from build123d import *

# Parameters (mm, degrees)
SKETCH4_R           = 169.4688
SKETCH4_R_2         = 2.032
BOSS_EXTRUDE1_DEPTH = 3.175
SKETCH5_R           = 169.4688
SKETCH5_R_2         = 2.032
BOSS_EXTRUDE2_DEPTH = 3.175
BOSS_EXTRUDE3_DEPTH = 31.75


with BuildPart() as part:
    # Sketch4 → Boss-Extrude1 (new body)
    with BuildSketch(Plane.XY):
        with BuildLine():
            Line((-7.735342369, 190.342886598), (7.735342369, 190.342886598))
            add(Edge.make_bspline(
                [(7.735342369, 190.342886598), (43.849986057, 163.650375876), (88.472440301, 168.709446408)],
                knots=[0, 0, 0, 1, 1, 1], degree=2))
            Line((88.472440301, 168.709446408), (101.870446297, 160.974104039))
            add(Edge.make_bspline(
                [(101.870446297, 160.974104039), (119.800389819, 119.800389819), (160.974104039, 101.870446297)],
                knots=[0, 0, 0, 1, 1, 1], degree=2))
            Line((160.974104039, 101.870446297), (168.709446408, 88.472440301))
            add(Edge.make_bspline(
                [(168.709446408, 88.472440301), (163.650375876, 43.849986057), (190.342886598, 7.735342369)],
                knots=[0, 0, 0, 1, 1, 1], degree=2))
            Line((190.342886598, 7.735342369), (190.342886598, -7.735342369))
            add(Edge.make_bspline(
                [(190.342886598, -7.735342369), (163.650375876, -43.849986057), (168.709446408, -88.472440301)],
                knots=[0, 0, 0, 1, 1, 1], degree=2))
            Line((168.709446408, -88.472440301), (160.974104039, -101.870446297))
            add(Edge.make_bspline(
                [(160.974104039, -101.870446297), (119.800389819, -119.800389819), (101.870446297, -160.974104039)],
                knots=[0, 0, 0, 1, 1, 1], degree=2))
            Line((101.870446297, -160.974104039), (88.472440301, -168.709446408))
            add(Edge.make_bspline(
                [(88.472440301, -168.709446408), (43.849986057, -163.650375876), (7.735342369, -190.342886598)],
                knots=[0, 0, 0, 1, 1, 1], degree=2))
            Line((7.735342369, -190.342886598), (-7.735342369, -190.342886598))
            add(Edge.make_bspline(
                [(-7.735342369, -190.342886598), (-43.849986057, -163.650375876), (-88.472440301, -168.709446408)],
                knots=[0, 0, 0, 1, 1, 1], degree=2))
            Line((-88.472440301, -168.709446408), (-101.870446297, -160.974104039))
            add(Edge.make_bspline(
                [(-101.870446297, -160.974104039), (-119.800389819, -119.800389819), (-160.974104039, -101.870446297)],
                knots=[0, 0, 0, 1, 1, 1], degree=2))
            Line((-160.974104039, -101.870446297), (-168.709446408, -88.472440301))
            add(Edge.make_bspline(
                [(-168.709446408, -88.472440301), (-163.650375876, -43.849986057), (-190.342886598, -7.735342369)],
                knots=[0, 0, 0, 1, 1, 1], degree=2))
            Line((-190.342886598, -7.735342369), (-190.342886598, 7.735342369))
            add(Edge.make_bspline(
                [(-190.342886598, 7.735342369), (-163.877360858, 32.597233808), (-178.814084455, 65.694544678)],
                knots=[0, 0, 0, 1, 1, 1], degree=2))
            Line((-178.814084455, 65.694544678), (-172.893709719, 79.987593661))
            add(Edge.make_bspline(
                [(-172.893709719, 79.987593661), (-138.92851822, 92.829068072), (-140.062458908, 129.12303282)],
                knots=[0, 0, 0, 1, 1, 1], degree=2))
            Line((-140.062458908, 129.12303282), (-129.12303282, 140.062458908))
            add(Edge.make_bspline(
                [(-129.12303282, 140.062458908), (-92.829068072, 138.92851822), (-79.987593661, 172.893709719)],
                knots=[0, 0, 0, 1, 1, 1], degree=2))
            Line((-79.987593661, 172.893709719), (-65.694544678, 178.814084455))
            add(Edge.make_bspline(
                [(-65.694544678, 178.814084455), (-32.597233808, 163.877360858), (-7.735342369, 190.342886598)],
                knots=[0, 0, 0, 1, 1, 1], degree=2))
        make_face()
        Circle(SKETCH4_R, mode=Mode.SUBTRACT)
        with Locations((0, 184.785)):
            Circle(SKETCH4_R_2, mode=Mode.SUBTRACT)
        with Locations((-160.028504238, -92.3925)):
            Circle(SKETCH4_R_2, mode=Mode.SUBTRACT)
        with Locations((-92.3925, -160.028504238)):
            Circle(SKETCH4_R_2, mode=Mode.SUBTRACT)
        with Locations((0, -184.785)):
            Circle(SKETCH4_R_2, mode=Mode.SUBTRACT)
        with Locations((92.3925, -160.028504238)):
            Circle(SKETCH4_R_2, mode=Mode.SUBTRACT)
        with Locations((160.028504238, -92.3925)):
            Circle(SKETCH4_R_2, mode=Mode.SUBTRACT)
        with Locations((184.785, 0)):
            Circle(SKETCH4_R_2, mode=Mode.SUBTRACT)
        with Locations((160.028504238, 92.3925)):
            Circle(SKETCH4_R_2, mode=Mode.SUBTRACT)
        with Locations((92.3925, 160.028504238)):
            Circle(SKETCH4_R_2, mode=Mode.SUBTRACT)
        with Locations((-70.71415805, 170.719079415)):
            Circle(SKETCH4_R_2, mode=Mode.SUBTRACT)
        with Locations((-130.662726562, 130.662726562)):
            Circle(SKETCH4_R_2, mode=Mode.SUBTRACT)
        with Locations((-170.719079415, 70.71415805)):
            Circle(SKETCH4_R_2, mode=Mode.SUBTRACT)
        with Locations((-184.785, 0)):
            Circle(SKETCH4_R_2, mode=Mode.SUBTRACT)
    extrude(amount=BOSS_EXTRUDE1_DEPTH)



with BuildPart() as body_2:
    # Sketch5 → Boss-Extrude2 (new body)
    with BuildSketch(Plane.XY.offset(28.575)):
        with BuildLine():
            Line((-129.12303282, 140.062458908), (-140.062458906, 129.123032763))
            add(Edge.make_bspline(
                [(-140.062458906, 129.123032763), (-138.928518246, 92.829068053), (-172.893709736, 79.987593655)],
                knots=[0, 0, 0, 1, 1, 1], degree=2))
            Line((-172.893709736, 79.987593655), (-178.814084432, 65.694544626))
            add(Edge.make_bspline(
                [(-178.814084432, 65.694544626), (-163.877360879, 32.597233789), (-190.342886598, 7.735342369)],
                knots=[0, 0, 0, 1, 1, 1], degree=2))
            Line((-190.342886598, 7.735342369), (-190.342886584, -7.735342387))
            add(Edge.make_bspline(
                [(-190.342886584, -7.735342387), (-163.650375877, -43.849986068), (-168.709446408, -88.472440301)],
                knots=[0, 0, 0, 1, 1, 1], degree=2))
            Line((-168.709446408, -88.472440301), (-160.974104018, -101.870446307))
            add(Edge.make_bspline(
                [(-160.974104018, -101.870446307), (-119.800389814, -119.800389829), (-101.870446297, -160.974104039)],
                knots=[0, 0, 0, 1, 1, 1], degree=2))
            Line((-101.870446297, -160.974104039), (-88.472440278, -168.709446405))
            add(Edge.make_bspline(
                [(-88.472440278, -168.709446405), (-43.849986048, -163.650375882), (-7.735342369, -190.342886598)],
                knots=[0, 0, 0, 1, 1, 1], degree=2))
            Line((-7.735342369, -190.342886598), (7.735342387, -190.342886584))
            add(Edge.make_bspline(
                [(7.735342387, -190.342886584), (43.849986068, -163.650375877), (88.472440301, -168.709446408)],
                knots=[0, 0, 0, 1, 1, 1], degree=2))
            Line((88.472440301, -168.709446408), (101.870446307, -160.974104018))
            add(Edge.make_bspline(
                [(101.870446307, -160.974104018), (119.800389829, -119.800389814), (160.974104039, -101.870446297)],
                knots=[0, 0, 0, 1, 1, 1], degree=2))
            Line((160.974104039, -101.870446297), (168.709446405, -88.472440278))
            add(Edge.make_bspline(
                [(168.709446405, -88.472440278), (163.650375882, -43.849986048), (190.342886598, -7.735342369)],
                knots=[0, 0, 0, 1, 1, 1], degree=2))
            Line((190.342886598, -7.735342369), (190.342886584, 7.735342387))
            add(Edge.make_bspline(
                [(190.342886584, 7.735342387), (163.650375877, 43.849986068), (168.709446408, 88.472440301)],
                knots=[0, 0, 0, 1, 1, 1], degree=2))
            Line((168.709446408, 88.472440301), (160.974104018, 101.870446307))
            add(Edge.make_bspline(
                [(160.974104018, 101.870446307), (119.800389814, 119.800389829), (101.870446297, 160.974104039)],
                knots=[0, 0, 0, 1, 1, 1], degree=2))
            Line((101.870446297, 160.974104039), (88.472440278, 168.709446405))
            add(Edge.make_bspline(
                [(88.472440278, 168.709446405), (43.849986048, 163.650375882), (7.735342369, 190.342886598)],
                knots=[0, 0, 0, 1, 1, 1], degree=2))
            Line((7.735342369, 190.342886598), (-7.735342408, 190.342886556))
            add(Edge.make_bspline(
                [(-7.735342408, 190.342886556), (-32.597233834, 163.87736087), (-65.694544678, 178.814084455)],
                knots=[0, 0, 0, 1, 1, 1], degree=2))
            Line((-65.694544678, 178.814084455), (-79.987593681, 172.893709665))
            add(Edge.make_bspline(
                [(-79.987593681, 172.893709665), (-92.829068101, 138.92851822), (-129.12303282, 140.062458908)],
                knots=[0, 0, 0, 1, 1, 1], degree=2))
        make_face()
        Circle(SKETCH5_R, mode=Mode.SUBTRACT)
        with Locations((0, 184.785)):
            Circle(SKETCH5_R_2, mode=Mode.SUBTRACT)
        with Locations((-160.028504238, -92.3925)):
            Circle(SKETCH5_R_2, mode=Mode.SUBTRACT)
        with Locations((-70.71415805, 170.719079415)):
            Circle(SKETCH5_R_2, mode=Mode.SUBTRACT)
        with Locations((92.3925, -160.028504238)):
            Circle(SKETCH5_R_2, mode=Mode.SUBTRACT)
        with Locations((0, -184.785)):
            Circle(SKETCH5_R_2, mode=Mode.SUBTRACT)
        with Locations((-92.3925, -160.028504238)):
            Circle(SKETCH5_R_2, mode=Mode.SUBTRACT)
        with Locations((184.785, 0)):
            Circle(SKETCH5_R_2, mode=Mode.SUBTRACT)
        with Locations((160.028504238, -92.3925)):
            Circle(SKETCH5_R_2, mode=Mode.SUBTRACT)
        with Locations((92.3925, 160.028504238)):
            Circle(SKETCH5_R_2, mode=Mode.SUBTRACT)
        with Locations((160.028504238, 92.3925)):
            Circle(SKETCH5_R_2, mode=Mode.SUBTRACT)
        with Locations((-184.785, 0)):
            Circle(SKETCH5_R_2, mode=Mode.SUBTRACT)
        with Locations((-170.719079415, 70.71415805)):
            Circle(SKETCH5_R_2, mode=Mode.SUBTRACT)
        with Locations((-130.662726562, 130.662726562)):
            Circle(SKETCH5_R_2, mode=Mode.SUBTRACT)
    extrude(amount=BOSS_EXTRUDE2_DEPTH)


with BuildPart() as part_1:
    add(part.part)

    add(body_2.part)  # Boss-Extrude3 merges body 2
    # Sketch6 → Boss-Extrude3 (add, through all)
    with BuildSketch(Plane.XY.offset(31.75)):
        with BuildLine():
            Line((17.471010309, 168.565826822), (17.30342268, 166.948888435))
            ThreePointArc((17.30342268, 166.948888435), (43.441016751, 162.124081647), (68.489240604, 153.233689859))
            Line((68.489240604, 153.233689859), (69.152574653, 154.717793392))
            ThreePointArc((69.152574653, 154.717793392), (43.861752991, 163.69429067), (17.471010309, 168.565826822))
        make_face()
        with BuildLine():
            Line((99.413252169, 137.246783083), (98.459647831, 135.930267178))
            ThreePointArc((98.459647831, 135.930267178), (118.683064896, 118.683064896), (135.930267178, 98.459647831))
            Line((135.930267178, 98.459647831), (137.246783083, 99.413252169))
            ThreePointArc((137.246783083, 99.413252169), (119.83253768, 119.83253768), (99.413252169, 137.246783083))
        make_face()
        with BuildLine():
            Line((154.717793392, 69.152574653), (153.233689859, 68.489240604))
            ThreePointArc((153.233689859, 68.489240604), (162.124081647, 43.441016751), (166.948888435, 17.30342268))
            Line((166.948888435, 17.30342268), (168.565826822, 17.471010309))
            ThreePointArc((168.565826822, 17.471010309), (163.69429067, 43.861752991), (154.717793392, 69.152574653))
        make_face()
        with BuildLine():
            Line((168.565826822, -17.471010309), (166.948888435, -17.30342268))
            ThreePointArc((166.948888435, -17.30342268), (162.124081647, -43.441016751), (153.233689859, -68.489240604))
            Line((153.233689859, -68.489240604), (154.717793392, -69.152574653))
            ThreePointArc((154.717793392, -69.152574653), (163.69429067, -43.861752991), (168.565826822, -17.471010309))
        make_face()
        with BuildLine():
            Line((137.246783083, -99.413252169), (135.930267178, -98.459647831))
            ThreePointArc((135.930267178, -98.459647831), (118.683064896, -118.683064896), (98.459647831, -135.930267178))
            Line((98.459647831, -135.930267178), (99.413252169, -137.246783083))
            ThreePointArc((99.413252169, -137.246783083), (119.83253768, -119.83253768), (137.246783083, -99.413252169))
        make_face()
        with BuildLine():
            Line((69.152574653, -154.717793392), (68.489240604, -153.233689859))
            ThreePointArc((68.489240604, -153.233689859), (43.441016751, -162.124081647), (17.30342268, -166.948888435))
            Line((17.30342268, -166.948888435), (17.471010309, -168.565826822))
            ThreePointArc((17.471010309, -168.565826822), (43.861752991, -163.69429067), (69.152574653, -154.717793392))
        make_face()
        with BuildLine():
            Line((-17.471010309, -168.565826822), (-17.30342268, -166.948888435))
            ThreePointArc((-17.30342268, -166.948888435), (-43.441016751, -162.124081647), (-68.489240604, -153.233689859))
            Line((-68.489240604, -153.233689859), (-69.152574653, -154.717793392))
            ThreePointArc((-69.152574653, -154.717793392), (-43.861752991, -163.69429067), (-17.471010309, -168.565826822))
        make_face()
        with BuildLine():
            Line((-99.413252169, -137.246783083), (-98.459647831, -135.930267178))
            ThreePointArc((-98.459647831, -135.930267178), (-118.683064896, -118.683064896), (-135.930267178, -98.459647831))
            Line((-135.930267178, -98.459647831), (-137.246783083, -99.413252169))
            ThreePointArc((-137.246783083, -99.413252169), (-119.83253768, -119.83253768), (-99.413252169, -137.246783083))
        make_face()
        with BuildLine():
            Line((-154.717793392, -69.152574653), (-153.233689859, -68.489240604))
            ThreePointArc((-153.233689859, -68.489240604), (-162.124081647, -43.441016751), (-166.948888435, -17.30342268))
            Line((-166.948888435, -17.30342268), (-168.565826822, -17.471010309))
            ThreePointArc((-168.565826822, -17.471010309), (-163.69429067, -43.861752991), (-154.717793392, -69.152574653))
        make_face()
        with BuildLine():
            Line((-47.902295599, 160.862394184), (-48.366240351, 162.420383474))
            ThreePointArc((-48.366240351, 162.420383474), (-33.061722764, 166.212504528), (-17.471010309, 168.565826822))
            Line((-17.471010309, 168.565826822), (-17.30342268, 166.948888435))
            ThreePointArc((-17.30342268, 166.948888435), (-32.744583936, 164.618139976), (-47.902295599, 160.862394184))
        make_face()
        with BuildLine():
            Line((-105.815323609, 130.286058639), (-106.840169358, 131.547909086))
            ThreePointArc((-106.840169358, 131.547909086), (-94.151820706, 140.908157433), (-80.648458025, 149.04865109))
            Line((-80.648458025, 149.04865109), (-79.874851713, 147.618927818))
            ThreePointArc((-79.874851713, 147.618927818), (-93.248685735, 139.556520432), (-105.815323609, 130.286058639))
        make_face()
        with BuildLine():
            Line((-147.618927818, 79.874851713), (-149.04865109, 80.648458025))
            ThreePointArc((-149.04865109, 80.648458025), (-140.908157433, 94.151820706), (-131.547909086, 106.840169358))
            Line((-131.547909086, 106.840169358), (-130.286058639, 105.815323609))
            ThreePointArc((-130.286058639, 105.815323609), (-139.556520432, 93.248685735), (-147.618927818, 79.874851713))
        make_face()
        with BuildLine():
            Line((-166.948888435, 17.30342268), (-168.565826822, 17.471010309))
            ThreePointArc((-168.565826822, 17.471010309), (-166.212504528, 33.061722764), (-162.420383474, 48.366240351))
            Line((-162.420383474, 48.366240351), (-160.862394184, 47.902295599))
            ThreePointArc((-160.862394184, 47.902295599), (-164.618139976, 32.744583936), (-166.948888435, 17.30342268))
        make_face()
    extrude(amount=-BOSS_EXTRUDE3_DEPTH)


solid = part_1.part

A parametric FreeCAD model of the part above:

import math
import FreeCAD as App
import Part
import Sketcher
from FreeCAD import Vector
Q = App.Units.Quantity

doc = App.newDocument("Part")
params = doc.addObject("Spreadsheet::Sheet", "Params")
for row, (alias, value) in enumerate([
    ("sketch1_diameter", "0.16 in"),
    ("sketch1_diameter2", "13.344 in"),
    ("pad1_length", "0.125 in"),
    ("sketch2_diameter", "0.16 in"),
    ("sketch2_diameter2", "13.344 in"),
    ("pad2_length", "0.125 in"),
    ("sketch3_radius", "6.608 in"),
    ("sketch3_radius2", "6.672 in"),
    ("pad3_length", "1.25 in"),
], start=1):
    params.set(f"A{row}", alias)
    params.set(f"B{row}", "=" + value)
    params.setAlias(f"B{row}", alias)

body = doc.addObject("PartDesign::Body", "Body")

# Sketch on XY plane
sketch1 = body.newObject("Sketcher::SketchObject", "Sketch")
sketch1.AttachmentSupport = (doc.getObject("XY_Plane"), [""])
sketch1.MapMode = "FlatFace"
sketch1.addGeometry(Part.LineSegment(Vector(7.735342, 190.342887, 0), Vector(-7.735342, 190.342887, 0)), False)
sketch1.addGeometry(Part.BSplineCurve([Vector(-65.694545, 178.814084, 0), Vector(-32.597234, 163.877361, 0), Vector(-7.735342, 190.342887, 0)], [3, 3], [0, 1], False, 2, [1, 1, 1], False), False)
sketch1.addGeometry(Part.LineSegment(Vector(-65.694545, 178.814084, 0), Vector(-79.987594, 172.89371, 0)), False)
sketch1.addGeometry(Part.BSplineCurve([Vector(-129.123033, 140.062459, 0), Vector(-92.829068, 138.928518, 0), Vector(-79.987594, 172.89371, 0)], [3, 3], [0, 1], False, 2, [1, 1, 1], False), False)
sketch1.addGeometry(Part.LineSegment(Vector(-129.123033, 140.062459, 0), Vector(-140.062459, 129.123033, 0)), False)
sketch1.addGeometry(Part.BSplineCurve([Vector(-172.89371, 79.987594, 0), Vector(-138.928518, 92.829068, 0), Vector(-140.062459, 129.123033, 0)], [3, 3], [0, 1], False, 2, [1, 1, 1], False), False)
sketch1.addGeometry(Part.LineSegment(Vector(-172.89371, 79.987594, 0), Vector(-178.814084, 65.694545, 0)), False)
sketch1.addGeometry(Part.BSplineCurve([Vector(-190.342887, 7.735342, 0), Vector(-163.877361, 32.597234, 0), Vector(-178.814084, 65.694545, 0)], [3, 3], [0, 1], False, 2, [1, 1, 1], False), False)
sketch1.addGeometry(Part.LineSegment(Vector(-190.342887, 7.735342, 0), Vector(-190.342887, -7.735342, 0)), False)
sketch1.addGeometry(Part.BSplineCurve([Vector(-168.709446, -88.47244, 0), Vector(-163.650376, -43.849986, 0), Vector(-190.342887, -7.735342, 0)], [3, 3], [0, 1], False, 2, [1, 1, 1], False), False)
sketch1.addGeometry(Part.LineSegment(Vector(-168.709446, -88.47244, 0), Vector(-160.974104, -101.870446, 0)), False)
sketch1.addGeometry(Part.BSplineCurve([Vector(-101.870446, -160.974104, 0), Vector(-119.80039, -119.80039, 0), Vector(-160.974104, -101.870446, 0)], [3, 3], [0, 1], False, 2, [1, 1, 1], False), False)
sketch1.addGeometry(Part.LineSegment(Vector(-101.870446, -160.974104, 0), Vector(-88.47244, -168.709446, 0)), False)
sketch1.addGeometry(Part.BSplineCurve([Vector(-7.735342, -190.342887, 0), Vector(-43.849986, -163.650376, 0), Vector(-88.47244, -168.709446, 0)], [3, 3], [0, 1], False, 2, [1, 1, 1], False), False)
sketch1.addGeometry(Part.LineSegment(Vector(-7.735342, -190.342887, 0), Vector(7.735342, -190.342887, 0)), False)
sketch1.addGeometry(Part.BSplineCurve([Vector(88.47244, -168.709446, 0), Vector(43.849986, -163.650376, 0), Vector(7.735342, -190.342887, 0)], [3, 3], [0, 1], False, 2, [1, 1, 1], False), False)
sketch1.addGeometry(Part.LineSegment(Vector(88.47244, -168.709446, 0), Vector(101.870446, -160.974104, 0)), False)
sketch1.addGeometry(Part.BSplineCurve([Vector(160.974104, -101.870446, 0), Vector(119.80039, -119.80039, 0), Vector(101.870446, -160.974104, 0)], [3, 3], [0, 1], False, 2, [1, 1, 1], False), False)
sketch1.addGeometry(Part.LineSegment(Vector(160.974104, -101.870446, 0), Vector(168.709446, -88.47244, 0)), False)
sketch1.addGeometry(Part.BSplineCurve([Vector(190.342887, -7.735342, 0), Vector(163.650376, -43.849986, 0), Vector(168.709446, -88.47244, 0)], [3, 3], [0, 1], False, 2, [1, 1, 1], False), False)
sketch1.addGeometry(Part.LineSegment(Vector(190.342887, -7.735342, 0), Vector(190.342887, 7.735342, 0)), False)
sketch1.addGeometry(Part.BSplineCurve([Vector(168.709446, 88.47244, 0), Vector(163.650376, 43.849986, 0), Vector(190.342887, 7.735342, 0)], [3, 3], [0, 1], False, 2, [1, 1, 1], False), False)
sketch1.addGeometry(Part.LineSegment(Vector(168.709446, 88.47244, 0), Vector(160.974104, 101.870446, 0)), False)
sketch1.addGeometry(Part.BSplineCurve([Vector(101.870446, 160.974104, 0), Vector(119.80039, 119.80039, 0), Vector(160.974104, 101.870446, 0)], [3, 3], [0, 1], False, 2, [1, 1, 1], False), False)
sketch1.addGeometry(Part.LineSegment(Vector(101.870446, 160.974104, 0), Vector(88.47244, 168.709446, 0)), False)
sketch1.addGeometry(Part.BSplineCurve([Vector(7.735342, 190.342887, 0), Vector(43.849986, 163.650376, 0), Vector(88.47244, 168.709446, 0)], [3, 3], [0, 1], False, 2, [1, 1, 1], False), False)
sketch1.addGeometry(Part.Circle(Vector(92.3925, -160.028504, 0), Vector(0, 0, 1), 2.032), False)
sketch1.addGeometry(Part.Circle(Vector(0, -184.785, 0), Vector(0, 0, 1), 2.032), False)
sketch1.addGeometry(Part.Circle(Vector(160.028504, -92.3925, 0), Vector(0, 0, 1), 2.032), False)
sketch1.addGeometry(Part.Circle(Vector(184.785, 0, 0), Vector(0, 0, 1), 2.032), False)
sketch1.addGeometry(Part.Circle(Vector(0, 0, 0), Vector(0, 0, 1), 169.4688), False)
sketch1.addGeometry(Part.Circle(Vector(-92.3925, -160.028504, 0), Vector(0, 0, 1), 2.032), False)
sketch1.addGeometry(Part.Circle(Vector(-160.028504, -92.3925, 0), Vector(0, 0, 1), 2.032), False)
sketch1.addGeometry(Part.Circle(Vector(-184.785, 0, 0), Vector(0, 0, 1), 2.032), False)
sketch1.addGeometry(Part.Circle(Vector(160.028504, 92.3925, 0), Vector(0, 0, 1), 2.032), False)
sketch1.addGeometry(Part.Circle(Vector(92.3925, 160.028504, 0), Vector(0, 0, 1), 2.032), False)
sketch1.addGeometry(Part.Circle(Vector(0, 184.785, 0), Vector(0, 0, 1), 2.032), False)
sketch1.addGeometry(Part.Circle(Vector(-170.719079, 70.714158, 0), Vector(0, 0, 1), 2.032), False)
sketch1.addGeometry(Part.Circle(Vector(-70.714158, 170.719079, 0), Vector(0, 0, 1), 2.032), False)
sketch1.addGeometry(Part.Circle(Vector(-130.662727, 130.662727, 0), Vector(0, 0, 1), 2.032), False)
sketch1.addConstraint(Sketcher.Constraint("Block", 1))
sketch1.addConstraint(Sketcher.Constraint("Block", 3))
sketch1.addConstraint(Sketcher.Constraint("Block", 5))
sketch1.addConstraint(Sketcher.Constraint("Block", 7))
sketch1.addConstraint(Sketcher.Constraint("Block", 9))
sketch1.addConstraint(Sketcher.Constraint("Block", 11))
sketch1.addConstraint(Sketcher.Constraint("Block", 13))
sketch1.addConstraint(Sketcher.Constraint("Block", 15))
sketch1.addConstraint(Sketcher.Constraint("Block", 17))
sketch1.addConstraint(Sketcher.Constraint("Block", 19))
sketch1.addConstraint(Sketcher.Constraint("Block", 21))
sketch1.addConstraint(Sketcher.Constraint("Block", 23))
sketch1.addConstraint(Sketcher.Constraint("Block", 25))
sketch1.addConstraint(Sketcher.Constraint("Coincident", 0, 2, 1, 2))
sketch1.addConstraint(Sketcher.Constraint("Coincident", 1, 1, 2, 1))
sketch1.addConstraint(Sketcher.Constraint("Coincident", 2, 2, 3, 2))
sketch1.addConstraint(Sketcher.Constraint("Coincident", 3, 1, 4, 1))
sketch1.addConstraint(Sketcher.Constraint("Coincident", 4, 2, 5, 2))
sketch1.addConstraint(Sketcher.Constraint("Coincident", 5, 1, 6, 1))
sketch1.addConstraint(Sketcher.Constraint("Coincident", 6, 2, 7, 2))
sketch1.addConstraint(Sketcher.Constraint("Coincident", 7, 1, 8, 1))
sketch1.addConstraint(Sketcher.Constraint("Coincident", 8, 2, 9, 2))
sketch1.addConstraint(Sketcher.Constraint("Coincident", 9, 1, 10, 1))
sketch1.addConstraint(Sketcher.Constraint("Coincident", 10, 2, 11, 2))
sketch1.addConstraint(Sketcher.Constraint("Coincident", 11, 1, 12, 1))
sketch1.addConstraint(Sketcher.Constraint("Coincident", 12, 2, 13, 2))
sketch1.addConstraint(Sketcher.Constraint("Coincident", 13, 1, 14, 1))
sketch1.addConstraint(Sketcher.Constraint("Coincident", 14, 2, 15, 2))
sketch1.addConstraint(Sketcher.Constraint("Coincident", 15, 1, 16, 1))
sketch1.addConstraint(Sketcher.Constraint("Coincident", 16, 2, 17, 2))
sketch1.addConstraint(Sketcher.Constraint("Coincident", 17, 1, 18, 1))
sketch1.addConstraint(Sketcher.Constraint("Coincident", 18, 2, 19, 2))
sketch1.addConstraint(Sketcher.Constraint("Coincident", 19, 1, 20, 1))
sketch1.addConstraint(Sketcher.Constraint("Coincident", 20, 2, 21, 2))
sketch1.addConstraint(Sketcher.Constraint("Coincident", 21, 1, 22, 1))
sketch1.addConstraint(Sketcher.Constraint("Coincident", 22, 2, 23, 2))
sketch1.addConstraint(Sketcher.Constraint("Coincident", 23, 1, 24, 1))
sketch1.addConstraint(Sketcher.Constraint("Coincident", 24, 2, 25, 2))
sketch1.addConstraint(Sketcher.Constraint("Coincident", 25, 1, 0, 1))
sketch1.addConstraint(Sketcher.Constraint("Coincident", 30, 3, -1, 1))
sketch1.addConstraint(Sketcher.Constraint("Equal", 26, 27))
sketch1.addConstraint(Sketcher.Constraint("Equal", 27, 28))
sketch1.addConstraint(Sketcher.Constraint("Equal", 28, 29))
sketch1.addConstraint(Sketcher.Constraint("Equal", 29, 31))
sketch1.addConstraint(Sketcher.Constraint("Equal", 31, 32))
sketch1.addConstraint(Sketcher.Constraint("Equal", 32, 33))
sketch1.addConstraint(Sketcher.Constraint("Equal", 33, 34))
sketch1.addConstraint(Sketcher.Constraint("Equal", 34, 35))
sketch1.addConstraint(Sketcher.Constraint("Equal", 35, 36))
sketch1.addConstraint(Sketcher.Constraint("Equal", 36, 37))
sketch1.addConstraint(Sketcher.Constraint("Equal", 37, 38))
sketch1.addConstraint(Sketcher.Constraint("Equal", 38, 39))
sketch1.addConstraint(Sketcher.Constraint("Symmetric", 29, 3, 33, 3, -1, 1))
sketch1.addConstraint(Sketcher.Constraint("Symmetric", 32, 3, 34, 3, -1, 1))
sketch1.addConstraint(Sketcher.Constraint("Symmetric", 31, 3, 35, 3, -1, 1))
sketch1.addConstraint(Sketcher.Constraint("Symmetric", 27, 3, 36, 3, -1, 1))
sketch1.addConstraint(Sketcher.Constraint("Symmetric", 26, 3, 31, 3, -2))
sketch1.addConstraint(Sketcher.Constraint("Symmetric", 28, 3, 32, 3, -2))
sketch1.addConstraint(Sketcher.Constraint("PointOnObject", 27, 3, -2))
sketch1.addConstraint(Sketcher.Constraint("PointOnObject", 29, 3, -1))
sketch1.addConstraint(Sketcher.Constraint("Diameter", 26, Q("0.16 in")))
sketch1.addConstraint(Sketcher.Constraint("Diameter", 30, Q("13.344 in")))
sketch1.addConstraint(Sketcher.Constraint("DistanceY", 27, 3, -1, 1, Q("7.275 in")))
sketch1.addConstraint(Sketcher.Constraint("DistanceX", -1, 1, 29, 3, Q("7.275 in")))
sketch1.addConstraint(Sketcher.Constraint("DistanceX", 31, 3, 26, 3, Q("7.275 in")))
sketch1.addConstraint(Sketcher.Constraint("DistanceY", 28, 3, 34, 3, Q("7.275 in")))
sketch1.addConstraint(Sketcher.Constraint("DistanceX", 4, 2, 38, 3, 69.348301))
sketch1.addConstraint(Sketcher.Constraint("DistanceY", 8, 2, 37, 3, 78.4495))
sketch1.addConstraint(Sketcher.Constraint("DistanceX", 10, 2, 32, 3, 0.9456))
sketch1.addConstraint(Sketcher.Constraint("DistanceY", 16, 2, 26, 3, 0.9456))
sketch1.addConstraint(Sketcher.Constraint("DistanceX", 37, 3, -1, 1, 170.719079))
sketch1.addConstraint(Sketcher.Constraint("DistanceY", -1, 1, 38, 3, 170.719079))
sketch1.addConstraint(Sketcher.Constraint("DistanceY", 37, 3, 39, 3, 59.948569))
sketch1.addConstraint(Sketcher.Constraint("DistanceX", 39, 3, 38, 3, 59.948569))
sketch1.setExpression("Constraints[60]", "Params.sketch1_diameter")
sketch1.setExpression("Constraints[61]", "Params.sketch1_diameter2")
pad1 = body.newObject("PartDesign::Pad", "Pad")
pad1.Profile = sketch1
pad1.setExpression("Length", "Params.pad1_length")
body2 = doc.addObject("PartDesign::Body", "Body001")

# Sketch on XY plane
sketch2 = body2.newObject("Sketcher::SketchObject", "Sketch001")
sketch2.AttachmentSupport = (doc.getObject("XY_Plane001"), [""])
sketch2.MapMode = "FlatFace"
sketch2.AttachmentOffset = App.Placement(Vector(0, 0, 1.125 * 25.4), App.Rotation())
sketch2.addGeometry(Part.LineSegment(Vector(-129.123033, 140.062459, 0), Vector(-140.062459, 129.123033, 0)), False)
sketch2.addGeometry(Part.BSplineCurve([Vector(-140.062459, 129.123033, 0), Vector(-138.928518, 92.829068, 0), Vector(-172.89371, 79.987594, 0)], [3, 3], [0, 1], False, 2, [1, 1, 1], False), False)
sketch2.addGeometry(Part.LineSegment(Vector(-172.89371, 79.987594, 0), Vector(-178.814084, 65.694545, 0)), False)
sketch2.addGeometry(Part.BSplineCurve([Vector(-178.814084, 65.694545, 0), Vector(-163.877361, 32.597234, 0), Vector(-190.342887, 7.735342, 0)], [3, 3], [0, 1], False, 2, [1, 1, 1], False), False)
sketch2.addGeometry(Part.LineSegment(Vector(-190.342887, 7.735342, 0), Vector(-190.342887, -7.735342, 0)), False)
sketch2.addGeometry(Part.BSplineCurve([Vector(-190.342887, -7.735342, 0), Vector(-163.650376, -43.849986, 0), Vector(-168.709446, -88.47244, 0)], [3, 3], [0, 1], False, 2, [1, 1, 1], False), False)
sketch2.addGeometry(Part.LineSegment(Vector(-168.709446, -88.47244, 0), Vector(-160.974104, -101.870446, 0)), False)
sketch2.addGeometry(Part.BSplineCurve([Vector(-160.974104, -101.870446, 0), Vector(-119.80039, -119.80039, 0), Vector(-101.870446, -160.974104, 0)], [3, 3], [0, 1], False, 2, [1, 1, 1], False), False)
sketch2.addGeometry(Part.LineSegment(Vector(-101.870446, -160.974104, 0), Vector(-88.47244, -168.709446, 0)), False)
sketch2.addGeometry(Part.BSplineCurve([Vector(-88.47244, -168.709446, 0), Vector(-43.849986, -163.650376, 0), Vector(-7.735342, -190.342887, 0)], [3, 3], [0, 1], False, 2, [1, 1, 1], False), False)
sketch2.addGeometry(Part.LineSegment(Vector(-7.735342, -190.342887, 0), Vector(7.735342, -190.342887, 0)), False)
sketch2.addGeometry(Part.BSplineCurve([Vector(7.735342, -190.342887, 0), Vector(43.849986, -163.650376, 0), Vector(88.47244, -168.709446, 0)], [3, 3], [0, 1], False, 2, [1, 1, 1], False), False)
sketch2.addGeometry(Part.LineSegment(Vector(88.47244, -168.709446, 0), Vector(101.870446, -160.974104, 0)), False)
sketch2.addGeometry(Part.BSplineCurve([Vector(101.870446, -160.974104, 0), Vector(119.80039, -119.80039, 0), Vector(160.974104, -101.870446, 0)], [3, 3], [0, 1], False, 2, [1, 1, 1], False), False)
sketch2.addGeometry(Part.LineSegment(Vector(160.974104, -101.870446, 0), Vector(168.709446, -88.47244, 0)), False)
sketch2.addGeometry(Part.BSplineCurve([Vector(168.709446, -88.47244, 0), Vector(163.650376, -43.849986, 0), Vector(190.342887, -7.735342, 0)], [3, 3], [0, 1], False, 2, [1, 1, 1], False), False)
sketch2.addGeometry(Part.LineSegment(Vector(190.342887, -7.735342, 0), Vector(190.342887, 7.735342, 0)), False)
sketch2.addGeometry(Part.BSplineCurve([Vector(190.342887, 7.735342, 0), Vector(163.650376, 43.849986, 0), Vector(168.709446, 88.47244, 0)], [3, 3], [0, 1], False, 2, [1, 1, 1], False), False)
sketch2.addGeometry(Part.LineSegment(Vector(168.709446, 88.47244, 0), Vector(160.974104, 101.870446, 0)), False)
sketch2.addGeometry(Part.BSplineCurve([Vector(160.974104, 101.870446, 0), Vector(119.80039, 119.80039, 0), Vector(101.870446, 160.974104, 0)], [3, 3], [0, 1], False, 2, [1, 1, 1], False), False)
sketch2.addGeometry(Part.LineSegment(Vector(101.870446, 160.974104, 0), Vector(88.47244, 168.709446, 0)), False)
sketch2.addGeometry(Part.BSplineCurve([Vector(88.47244, 168.709446, 0), Vector(43.849986, 163.650376, 0), Vector(7.735342, 190.342887, 0)], [3, 3], [0, 1], False, 2, [1, 1, 1], False), False)
sketch2.addGeometry(Part.LineSegment(Vector(7.735342, 190.342887, 0), Vector(-7.735342, 190.342887, 0)), False)
sketch2.addGeometry(Part.BSplineCurve([Vector(-7.735342, 190.342887, 0), Vector(-32.597234, 163.877361, 0), Vector(-65.694545, 178.814084, 0)], [3, 3], [0, 1], False, 2, [1, 1, 1], False), False)
sketch2.addGeometry(Part.LineSegment(Vector(-65.694545, 178.814084, 0), Vector(-79.987594, 172.89371, 0)), False)
sketch2.addGeometry(Part.BSplineCurve([Vector(-79.987594, 172.89371, 0), Vector(-92.829068, 138.928518, 0), Vector(-129.123033, 140.062459, 0)], [3, 3], [0, 1], False, 2, [1, 1, 1], False), False)
sketch2.addGeometry(Part.Circle(Vector(-92.3925, -160.028504, 0), Vector(0, 0, 1), 2.032), False)
sketch2.addGeometry(Part.Circle(Vector(0, -184.785, 0), Vector(0, 0, 1), 2.032), False)
sketch2.addGeometry(Part.Circle(Vector(-160.028504, -92.3925, 0), Vector(0, 0, 1), 2.032), False)
sketch2.addGeometry(Part.Circle(Vector(-184.785, 0, 0), Vector(0, 0, 1), 2.032), False)
sketch2.addGeometry(Part.Circle(Vector(0, 0, 0), Vector(0, 0, 1), 169.4688), False)
sketch2.addGeometry(Part.Circle(Vector(92.3925, -160.028504, 0), Vector(0, 0, 1), 2.032), False)
sketch2.addGeometry(Part.Circle(Vector(160.028504, -92.3925, 0), Vector(0, 0, 1), 2.032), False)
sketch2.addGeometry(Part.Circle(Vector(184.785, 0, 0), Vector(0, 0, 1), 2.032), False)
sketch2.addGeometry(Part.Circle(Vector(-170.719079, 70.714158, 0), Vector(0, 0, 1), 2.032), False)
sketch2.addGeometry(Part.Circle(Vector(-130.662727, 130.662727, 0), Vector(0, 0, 1), 2.032), False)
sketch2.addGeometry(Part.Circle(Vector(-70.714158, 170.719079, 0), Vector(0, 0, 1), 2.032), False)
sketch2.addGeometry(Part.Circle(Vector(0, 184.785, 0), Vector(0, 0, 1), 2.032), False)
sketch2.addGeometry(Part.Circle(Vector(160.028504, 92.3925, 0), Vector(0, 0, 1), 2.032), False)
sketch2.addGeometry(Part.Circle(Vector(92.3925, 160.028504, 0), Vector(0, 0, 1), 2.032), False)
sketch2.addConstraint(Sketcher.Constraint("Block", 1))
sketch2.addConstraint(Sketcher.Constraint("Block", 3))
sketch2.addConstraint(Sketcher.Constraint("Block", 5))
sketch2.addConstraint(Sketcher.Constraint("Block", 7))
sketch2.addConstraint(Sketcher.Constraint("Block", 9))
sketch2.addConstraint(Sketcher.Constraint("Block", 11))
sketch2.addConstraint(Sketcher.Constraint("Block", 13))
sketch2.addConstraint(Sketcher.Constraint("Block", 15))
sketch2.addConstraint(Sketcher.Constraint("Block", 17))
sketch2.addConstraint(Sketcher.Constraint("Block", 19))
sketch2.addConstraint(Sketcher.Constraint("Block", 21))
sketch2.addConstraint(Sketcher.Constraint("Block", 23))
sketch2.addConstraint(Sketcher.Constraint("Block", 25))
sketch2.addConstraint(Sketcher.Constraint("Coincident", 0, 2, 1, 1))
sketch2.addConstraint(Sketcher.Constraint("Coincident", 1, 2, 2, 1))
sketch2.addConstraint(Sketcher.Constraint("Coincident", 2, 2, 3, 1))
sketch2.addConstraint(Sketcher.Constraint("Coincident", 3, 2, 4, 1))
sketch2.addConstraint(Sketcher.Constraint("Coincident", 4, 2, 5, 1))
sketch2.addConstraint(Sketcher.Constraint("Coincident", 5, 2, 6, 1))
sketch2.addConstraint(Sketcher.Constraint("Coincident", 6, 2, 7, 1))
sketch2.addConstraint(Sketcher.Constraint("Coincident", 7, 2, 8, 1))
sketch2.addConstraint(Sketcher.Constraint("Coincident", 8, 2, 9, 1))
sketch2.addConstraint(Sketcher.Constraint("Coincident", 9, 2, 10, 1))
sketch2.addConstraint(Sketcher.Constraint("Coincident", 10, 2, 11, 1))
sketch2.addConstraint(Sketcher.Constraint("Coincident", 11, 2, 12, 1))
sketch2.addConstraint(Sketcher.Constraint("Coincident", 12, 2, 13, 1))
sketch2.addConstraint(Sketcher.Constraint("Coincident", 13, 2, 14, 1))
sketch2.addConstraint(Sketcher.Constraint("Coincident", 14, 2, 15, 1))
sketch2.addConstraint(Sketcher.Constraint("Coincident", 15, 2, 16, 1))
sketch2.addConstraint(Sketcher.Constraint("Coincident", 16, 2, 17, 1))
sketch2.addConstraint(Sketcher.Constraint("Coincident", 17, 2, 18, 1))
sketch2.addConstraint(Sketcher.Constraint("Coincident", 18, 2, 19, 1))
sketch2.addConstraint(Sketcher.Constraint("Coincident", 19, 2, 20, 1))
sketch2.addConstraint(Sketcher.Constraint("Coincident", 20, 2, 21, 1))
sketch2.addConstraint(Sketcher.Constraint("Coincident", 21, 2, 22, 1))
sketch2.addConstraint(Sketcher.Constraint("Coincident", 22, 2, 23, 1))
sketch2.addConstraint(Sketcher.Constraint("Coincident", 23, 2, 24, 1))
sketch2.addConstraint(Sketcher.Constraint("Coincident", 24, 2, 25, 1))
sketch2.addConstraint(Sketcher.Constraint("Coincident", 25, 2, 0, 1))
sketch2.addConstraint(Sketcher.Constraint("Coincident", 30, 3, -1, 1))
sketch2.addConstraint(Sketcher.Constraint("Equal", 26, 27))
sketch2.addConstraint(Sketcher.Constraint("Equal", 27, 28))
sketch2.addConstraint(Sketcher.Constraint("Equal", 28, 29))
sketch2.addConstraint(Sketcher.Constraint("Equal", 29, 31))
sketch2.addConstraint(Sketcher.Constraint("Equal", 31, 32))
sketch2.addConstraint(Sketcher.Constraint("Equal", 32, 33))
sketch2.addConstraint(Sketcher.Constraint("Equal", 33, 34))
sketch2.addConstraint(Sketcher.Constraint("Equal", 34, 35))
sketch2.addConstraint(Sketcher.Constraint("Equal", 35, 36))
sketch2.addConstraint(Sketcher.Constraint("Equal", 36, 37))
sketch2.addConstraint(Sketcher.Constraint("Equal", 37, 38))
sketch2.addConstraint(Sketcher.Constraint("Equal", 38, 39))
sketch2.addConstraint(Sketcher.Constraint("Symmetric", 29, 3, 33, 3, -1, 1))
sketch2.addConstraint(Sketcher.Constraint("Symmetric", 27, 3, 37, 3, -1, 1))
sketch2.addConstraint(Sketcher.Constraint("Symmetric", 28, 3, 38, 3, -1, 1))
sketch2.addConstraint(Sketcher.Constraint("Symmetric", 26, 3, 39, 3, -1, 1))
sketch2.addConstraint(Sketcher.Constraint("Symmetric", 26, 3, 31, 3, -2))
sketch2.addConstraint(Sketcher.Constraint("Symmetric", 28, 3, 32, 3, -2))
sketch2.addConstraint(Sketcher.Constraint("PointOnObject", 27, 3, -2))
sketch2.addConstraint(Sketcher.Constraint("PointOnObject", 29, 3, -1))
sketch2.addConstraint(Sketcher.Constraint("Diameter", 26, Q("0.16 in")))
sketch2.addConstraint(Sketcher.Constraint("Diameter", 30, Q("13.344 in")))
sketch2.addConstraint(Sketcher.Constraint("DistanceY", 27, 3, -1, 1, Q("7.275 in")))
sketch2.addConstraint(Sketcher.Constraint("DistanceX", 29, 3, -1, 1, Q("7.275 in")))
sketch2.addConstraint(Sketcher.Constraint("DistanceX", 26, 3, 31, 3, Q("7.275 in")))
sketch2.addConstraint(Sketcher.Constraint("DistanceY", 32, 3, 38, 3, Q("7.275 in")))
sketch2.addConstraint(Sketcher.Constraint("DistanceX", 0, 2, 36, 3, 69.348301))
sketch2.addConstraint(Sketcher.Constraint("DistanceY", 4, 2, 34, 3, 78.4495))
sketch2.addConstraint(Sketcher.Constraint("DistanceX", 6, 2, 28, 3, 0.9456))
sketch2.addConstraint(Sketcher.Constraint("DistanceY", 12, 2, 31, 3, 0.9456))
sketch2.addConstraint(Sketcher.Constraint("DistanceX", 34, 3, -1, 1, 170.719079))
sketch2.addConstraint(Sketcher.Constraint("DistanceY", -1, 1, 36, 3, 170.719079))
sketch2.addConstraint(Sketcher.Constraint("DistanceY", 34, 3, 35, 3, 59.948569))
sketch2.addConstraint(Sketcher.Constraint("DistanceX", 35, 3, 36, 3, 59.948569))
sketch2.setExpression("Constraints[60]", "Params.sketch2_diameter")
sketch2.setExpression("Constraints[61]", "Params.sketch2_diameter2")
pad2 = body2.newObject("PartDesign::Pad", "Pad001")
pad2.Profile = sketch2
pad2.setExpression("Length", "Params.pad2_length")
body.AllowCompound = True
doc.recompute()

boolean = body.newObject("PartDesign::Boolean", "Boolean")
boolean.Type = "Fuse"
boolean.addObjects([body2])

# Sketch on XY plane
sketch3 = body.newObject("Sketcher::SketchObject", "Sketch002")
sketch3.AttachmentSupport = (doc.getObject("XY_Plane"), [""])
sketch3.MapMode = "FlatFace"
sketch3.AttachmentOffset = App.Placement(Vector(0, 0, 1.25 * 25.4), App.Rotation())
sketch3.addGeometry(Part.LineSegment(Vector(17.5, 168.6, 0), Vector(17.3, 166.9, 0)), False)
sketch3.addGeometry(Part.ArcOfCircle(Part.Circle(Vector(0, 0, 0), Vector(0, 0, 1), 167.8), math.radians(65.92), math.radians(84.08)), False)
sketch3.addGeometry(Part.LineSegment(Vector(68.5, 153.2, 0), Vector(69.2, 154.7, 0)), False)
sketch3.addGeometry(Part.ArcOfCircle(Part.Circle(Vector(0, 0, 0), Vector(0, 0, 1), 169.5), math.radians(65.92), math.radians(84.08)), False)
sketch3.addGeometry(Part.LineSegment(Vector(99.4, 137.2, 0), Vector(98.5, 135.9, 0)), False)
sketch3.addGeometry(Part.ArcOfCircle(Part.Circle(Vector(0, 0, 0), Vector(0, 0, 1), 167.8), math.radians(35.92), math.radians(54.08)), False)
sketch3.addGeometry(Part.LineSegment(Vector(135.9, 98.5, 0), Vector(137.2, 99.4, 0)), False)
sketch3.addGeometry(Part.ArcOfCircle(Part.Circle(Vector(0, 0, 0), Vector(0, 0, 1), 169.5), math.radians(35.92), math.radians(54.08)), False)
sketch3.addGeometry(Part.LineSegment(Vector(154.7, 69.2, 0), Vector(153.2, 68.5, 0)), False)
sketch3.addGeometry(Part.ArcOfCircle(Part.Circle(Vector(0, 0, 0), Vector(0, 0, 1), 167.8), math.radians(5.92), math.radians(24.08)), False)
sketch3.addGeometry(Part.LineSegment(Vector(166.9, 17.3, 0), Vector(168.6, 17.5, 0)), False)
sketch3.addGeometry(Part.ArcOfCircle(Part.Circle(Vector(0, 0, 0), Vector(0, 0, 1), 169.5), math.radians(5.92), math.radians(24.08)), False)
sketch3.addGeometry(Part.LineSegment(Vector(168.6, -17.5, 0), Vector(166.9, -17.3, 0)), False)
sketch3.addGeometry(Part.ArcOfCircle(Part.Circle(Vector(0, 0, 0), Vector(0, 0, 1), 167.8), math.radians(-24.08), math.radians(-5.92)), False)
sketch3.addGeometry(Part.LineSegment(Vector(153.2, -68.5, 0), Vector(154.7, -69.2, 0)), False)
sketch3.addGeometry(Part.ArcOfCircle(Part.Circle(Vector(0, 0, 0), Vector(0, 0, 1), 169.5), math.radians(-24.08), math.radians(-5.92)), False)
sketch3.addGeometry(Part.LineSegment(Vector(137.2, -99.4, 0), Vector(135.9, -98.5, 0)), False)
sketch3.addGeometry(Part.ArcOfCircle(Part.Circle(Vector(0, 0, 0), Vector(0, 0, 1), 167.8), math.radians(-54.08), math.radians(-35.92)), False)
sketch3.addGeometry(Part.LineSegment(Vector(98.5, -135.9, 0), Vector(99.4, -137.2, 0)), False)
sketch3.addGeometry(Part.ArcOfCircle(Part.Circle(Vector(0, 0, 0), Vector(0, 0, 1), 169.5), math.radians(-54.08), math.radians(-35.92)), False)
sketch3.addGeometry(Part.LineSegment(Vector(69.2, -154.7, 0), Vector(68.5, -153.2, 0)), False)
sketch3.addGeometry(Part.ArcOfCircle(Part.Circle(Vector(0, 0, 0), Vector(0, 0, 1), 167.8), math.radians(-84.08), math.radians(-65.92)), False)
sketch3.addGeometry(Part.LineSegment(Vector(17.3, -166.9, 0), Vector(17.5, -168.6, 0)), False)
sketch3.addGeometry(Part.ArcOfCircle(Part.Circle(Vector(0, 0, 0), Vector(0, 0, 1), 169.5), math.radians(-84.08), math.radians(-65.92)), False)
sketch3.addGeometry(Part.LineSegment(Vector(-17.5, -168.6, 0), Vector(-17.3, -166.9, 0)), False)
sketch3.addGeometry(Part.ArcOfCircle(Part.Circle(Vector(0, 0, 0), Vector(0, 0, 1), 167.8), math.radians(-114.08), math.radians(-95.92)), False)
sketch3.addGeometry(Part.LineSegment(Vector(-68.5, -153.2, 0), Vector(-69.2, -154.7, 0)), False)
sketch3.addGeometry(Part.ArcOfCircle(Part.Circle(Vector(0, 0, 0), Vector(0, 0, 1), 169.5), math.radians(-114.08), math.radians(-95.92)), False)
sketch3.addGeometry(Part.LineSegment(Vector(-99.4, -137.2, 0), Vector(-98.5, -135.9, 0)), False)
sketch3.addGeometry(Part.ArcOfCircle(Part.Circle(Vector(0, 0, 0), Vector(0, 0, 1), 167.8), math.radians(-144.08), math.radians(-125.92)), False)
sketch3.addGeometry(Part.LineSegment(Vector(-135.9, -98.5, 0), Vector(-137.2, -99.4, 0)), False)
sketch3.addGeometry(Part.ArcOfCircle(Part.Circle(Vector(0, 0, 0), Vector(0, 0, 1), 169.5), math.radians(-144.08), math.radians(-125.92)), False)
sketch3.addGeometry(Part.LineSegment(Vector(-154.7, -69.2, 0), Vector(-153.2, -68.5, 0)), False)
sketch3.addGeometry(Part.ArcOfCircle(Part.Circle(Vector(0, 0, 0), Vector(0, 0, 1), 167.8), math.radians(-174.08), math.radians(-155.92)), False)
sketch3.addGeometry(Part.LineSegment(Vector(-166.9, -17.3, 0), Vector(-168.6, -17.5, 0)), False)
sketch3.addGeometry(Part.ArcOfCircle(Part.Circle(Vector(0, 0, 0), Vector(0, 0, 1), 169.5), math.radians(-174.08), math.radians(-155.92)), False)
sketch3.addGeometry(Part.LineSegment(Vector(-48.4, 162.4, 0), Vector(-47.9, 160.9, 0)), False)
sketch3.addGeometry(Part.ArcOfCircle(Part.Circle(Vector(0, 0, 0), Vector(0, 0, 1), 167.8), math.radians(95.92), math.radians(106.58)), False)
sketch3.addGeometry(Part.LineSegment(Vector(-17.3, 166.9, 0), Vector(-17.5, 168.6, 0)), False)
sketch3.addGeometry(Part.ArcOfCircle(Part.Circle(Vector(0, 0, 0), Vector(0, 0, 1), 169.5), math.radians(95.92), math.radians(106.58)), False)
sketch3.addGeometry(Part.LineSegment(Vector(-106.8, 131.5, 0), Vector(-105.8, 130.3, 0)), False)
sketch3.addGeometry(Part.ArcOfCircle(Part.Circle(Vector(0, 0, 0), Vector(0, 0, 1), 167.8), math.radians(118.42), math.radians(129.08)), False)
sketch3.addGeometry(Part.LineSegment(Vector(-79.9, 147.6, 0), Vector(-80.6, 149, 0)), False)
sketch3.addGeometry(Part.ArcOfCircle(Part.Circle(Vector(0, 0, 0), Vector(0, 0, 1), 169.5), math.radians(118.42), math.radians(129.08)), False)
sketch3.addGeometry(Part.LineSegment(Vector(-149, 80.6, 0), Vector(-147.6, 79.9, 0)), False)
sketch3.addGeometry(Part.ArcOfCircle(Part.Circle(Vector(0, 0, 0), Vector(0, 0, 1), 167.8), math.radians(140.92), math.radians(151.58)), False)
sketch3.addGeometry(Part.LineSegment(Vector(-130.3, 105.8, 0), Vector(-131.5, 106.8, 0)), False)
sketch3.addGeometry(Part.ArcOfCircle(Part.Circle(Vector(0, 0, 0), Vector(0, 0, 1), 169.5), math.radians(140.92), math.radians(151.58)), False)
sketch3.addGeometry(Part.LineSegment(Vector(-168.6, 17.5, 0), Vector(-166.9, 17.3, 0)), False)
sketch3.addGeometry(Part.ArcOfCircle(Part.Circle(Vector(0, 0, 0), Vector(0, 0, 1), 167.8), math.radians(163.42), math.radians(174.08)), False)
sketch3.addGeometry(Part.LineSegment(Vector(-160.9, 47.9, 0), Vector(-162.4, 48.4, 0)), False)
sketch3.addGeometry(Part.ArcOfCircle(Part.Circle(Vector(0, 0, 0), Vector(0, 0, 1), 169.5), math.radians(163.42), math.radians(174.08)), False)
sketch3.addConstraint(Sketcher.Constraint("Coincident", 0, 2, 1, 2))
sketch3.addConstraint(Sketcher.Constraint("Coincident", 1, 1, 2, 1))
sketch3.addConstraint(Sketcher.Constraint("Coincident", 2, 2, 3, 1))
sketch3.addConstraint(Sketcher.Constraint("Coincident", 3, 2, 0, 1))
sketch3.addConstraint(Sketcher.Constraint("Coincident", 4, 2, 5, 2))
sketch3.addConstraint(Sketcher.Constraint("Coincident", 5, 1, 6, 1))
sketch3.addConstraint(Sketcher.Constraint("Coincident", 6, 2, 7, 1))
sketch3.addConstraint(Sketcher.Constraint("Coincident", 7, 2, 4, 1))
sketch3.addConstraint(Sketcher.Constraint("Coincident", 8, 2, 9, 2))
sketch3.addConstraint(Sketcher.Constraint("Coincident", 9, 1, 10, 1))
sketch3.addConstraint(Sketcher.Constraint("Coincident", 10, 2, 11, 1))
sketch3.addConstraint(Sketcher.Constraint("Coincident", 11, 2, 8, 1))
sketch3.addConstraint(Sketcher.Constraint("Coincident", 12, 2, 13, 2))
sketch3.addConstraint(Sketcher.Constraint("Coincident", 13, 1, 14, 1))
sketch3.addConstraint(Sketcher.Constraint("Coincident", 14, 2, 15, 1))
sketch3.addConstraint(Sketcher.Constraint("Coincident", 15, 2, 12, 1))
sketch3.addConstraint(Sketcher.Constraint("Coincident", 16, 2, 17, 2))
sketch3.addConstraint(Sketcher.Constraint("Coincident", 17, 1, 18, 1))
sketch3.addConstraint(Sketcher.Constraint("Coincident", 18, 2, 19, 1))
sketch3.addConstraint(Sketcher.Constraint("Coincident", 19, 2, 16, 1))
sketch3.addConstraint(Sketcher.Constraint("Coincident", 20, 2, 21, 2))
sketch3.addConstraint(Sketcher.Constraint("Coincident", 21, 1, 22, 1))
sketch3.addConstraint(Sketcher.Constraint("Coincident", 22, 2, 23, 1))
sketch3.addConstraint(Sketcher.Constraint("Coincident", 23, 2, 20, 1))
sketch3.addConstraint(Sketcher.Constraint("Coincident", 24, 2, 25, 2))
sketch3.addConstraint(Sketcher.Constraint("Coincident", 25, 1, 26, 1))
sketch3.addConstraint(Sketcher.Constraint("Coincident", 26, 2, 27, 1))
sketch3.addConstraint(Sketcher.Constraint("Coincident", 27, 2, 24, 1))
sketch3.addConstraint(Sketcher.Constraint("Coincident", 28, 2, 29, 2))
sketch3.addConstraint(Sketcher.Constraint("Coincident", 29, 1, 30, 1))
sketch3.addConstraint(Sketcher.Constraint("Coincident", 30, 2, 31, 1))
sketch3.addConstraint(Sketcher.Constraint("Coincident", 31, 2, 28, 1))
sketch3.addConstraint(Sketcher.Constraint("Coincident", 32, 2, 33, 2))
sketch3.addConstraint(Sketcher.Constraint("Coincident", 33, 1, 34, 1))
sketch3.addConstraint(Sketcher.Constraint("Coincident", 34, 2, 35, 1))
sketch3.addConstraint(Sketcher.Constraint("Coincident", 35, 2, 32, 1))
sketch3.addConstraint(Sketcher.Constraint("Coincident", 36, 2, 37, 2))
sketch3.addConstraint(Sketcher.Constraint("Coincident", 37, 1, 38, 1))
sketch3.addConstraint(Sketcher.Constraint("Coincident", 38, 2, 39, 1))
sketch3.addConstraint(Sketcher.Constraint("Coincident", 39, 2, 36, 1))
sketch3.addConstraint(Sketcher.Constraint("Coincident", 40, 2, 41, 2))
sketch3.addConstraint(Sketcher.Constraint("Coincident", 41, 1, 42, 1))
sketch3.addConstraint(Sketcher.Constraint("Coincident", 42, 2, 43, 1))
sketch3.addConstraint(Sketcher.Constraint("Coincident", 43, 2, 40, 1))
sketch3.addConstraint(Sketcher.Constraint("Coincident", 44, 2, 45, 2))
sketch3.addConstraint(Sketcher.Constraint("Coincident", 45, 1, 46, 1))
sketch3.addConstraint(Sketcher.Constraint("Coincident", 46, 2, 47, 1))
sketch3.addConstraint(Sketcher.Constraint("Coincident", 47, 2, 44, 1))
sketch3.addConstraint(Sketcher.Constraint("Coincident", 48, 2, 49, 2))
sketch3.addConstraint(Sketcher.Constraint("Coincident", 49, 1, 50, 1))
sketch3.addConstraint(Sketcher.Constraint("Coincident", 50, 2, 51, 1))
sketch3.addConstraint(Sketcher.Constraint("Coincident", 51, 2, 48, 1))
sketch3.addConstraint(Sketcher.Constraint("Coincident", 1, 3, -1, 1))
sketch3.addConstraint(Sketcher.Constraint("Coincident", 3, 3, -1, 1))
sketch3.addConstraint(Sketcher.Constraint("Coincident", 5, 3, -1, 1))
sketch3.addConstraint(Sketcher.Constraint("Coincident", 7, 3, -1, 1))
sketch3.addConstraint(Sketcher.Constraint("Coincident", 9, 3, -1, 1))
sketch3.addConstraint(Sketcher.Constraint("Coincident", 11, 3, -1, 1))
sketch3.addConstraint(Sketcher.Constraint("Coincident", 13, 3, -1, 1))
sketch3.addConstraint(Sketcher.Constraint("Coincident", 15, 3, -1, 1))
sketch3.addConstraint(Sketcher.Constraint("Coincident", 17, 3, -1, 1))
sketch3.addConstraint(Sketcher.Constraint("Coincident", 19, 3, -1, 1))
sketch3.addConstraint(Sketcher.Constraint("Coincident", 21, 3, -1, 1))
sketch3.addConstraint(Sketcher.Constraint("Coincident", 23, 3, -1, 1))
sketch3.addConstraint(Sketcher.Constraint("Coincident", 25, 3, -1, 1))
sketch3.addConstraint(Sketcher.Constraint("Coincident", 27, 3, -1, 1))
sketch3.addConstraint(Sketcher.Constraint("Coincident", 29, 3, -1, 1))
sketch3.addConstraint(Sketcher.Constraint("Coincident", 31, 3, -1, 1))
sketch3.addConstraint(Sketcher.Constraint("Coincident", 33, 3, -1, 1))
sketch3.addConstraint(Sketcher.Constraint("Coincident", 35, 3, -1, 1))
sketch3.addConstraint(Sketcher.Constraint("Coincident", 37, 3, -1, 1))
sketch3.addConstraint(Sketcher.Constraint("Coincident", 39, 3, -1, 1))
sketch3.addConstraint(Sketcher.Constraint("Coincident", 41, 3, -1, 1))
sketch3.addConstraint(Sketcher.Constraint("Coincident", 43, 3, -1, 1))
sketch3.addConstraint(Sketcher.Constraint("Coincident", 45, 3, -1, 1))
sketch3.addConstraint(Sketcher.Constraint("Coincident", 47, 3, -1, 1))
sketch3.addConstraint(Sketcher.Constraint("Coincident", 49, 3, -1, 1))
sketch3.addConstraint(Sketcher.Constraint("Coincident", 51, 3, -1, 1))
sketch3.addConstraint(Sketcher.Constraint("Equal", 1, 5))
sketch3.addConstraint(Sketcher.Constraint("Equal", 3, 7))
sketch3.addConstraint(Sketcher.Constraint("Equal", 5, 9))
sketch3.addConstraint(Sketcher.Constraint("Equal", 7, 11))
sketch3.addConstraint(Sketcher.Constraint("Equal", 9, 13))
sketch3.addConstraint(Sketcher.Constraint("Equal", 11, 15))
sketch3.addConstraint(Sketcher.Constraint("Equal", 13, 17))
sketch3.addConstraint(Sketcher.Constraint("Equal", 15, 19))
sketch3.addConstraint(Sketcher.Constraint("Equal", 17, 21))
sketch3.addConstraint(Sketcher.Constraint("Equal", 19, 23))
sketch3.addConstraint(Sketcher.Constraint("Equal", 21, 25))
sketch3.addConstraint(Sketcher.Constraint("Equal", 23, 27))
sketch3.addConstraint(Sketcher.Constraint("Equal", 25, 29))
sketch3.addConstraint(Sketcher.Constraint("Equal", 27, 31))
sketch3.addConstraint(Sketcher.Constraint("Equal", 29, 33))
sketch3.addConstraint(Sketcher.Constraint("Equal", 31, 35))
sketch3.addConstraint(Sketcher.Constraint("Equal", 33, 37))
sketch3.addConstraint(Sketcher.Constraint("Equal", 35, 39))
sketch3.addConstraint(Sketcher.Constraint("Equal", 37, 41))
sketch3.addConstraint(Sketcher.Constraint("Equal", 39, 43))
sketch3.addConstraint(Sketcher.Constraint("Equal", 41, 45))
sketch3.addConstraint(Sketcher.Constraint("Equal", 43, 47))
sketch3.addConstraint(Sketcher.Constraint("Equal", 45, 49))
sketch3.addConstraint(Sketcher.Constraint("Equal", 47, 51))
sketch3.addConstraint(Sketcher.Constraint("Perpendicular", 0, 12))
sketch3.addConstraint(Sketcher.Constraint("Perpendicular", 2, 14))
sketch3.addConstraint(Sketcher.Constraint("Perpendicular", 4, 16))
sketch3.addConstraint(Sketcher.Constraint("Perpendicular", 6, 18))
sketch3.addConstraint(Sketcher.Constraint("Perpendicular", 8, 20))
sketch3.addConstraint(Sketcher.Constraint("Perpendicular", 10, 22))
sketch3.addConstraint(Sketcher.Constraint("Perpendicular", 12, 24))
sketch3.addConstraint(Sketcher.Constraint("Perpendicular", 14, 26))
sketch3.addConstraint(Sketcher.Constraint("Perpendicular", 16, 28))
sketch3.addConstraint(Sketcher.Constraint("Perpendicular", 18, 30))
sketch3.addConstraint(Sketcher.Constraint("Perpendicular", 20, 32))
sketch3.addConstraint(Sketcher.Constraint("Perpendicular", 22, 34))
sketch3.addConstraint(Sketcher.Constraint("Perpendicular", 34, 38))
sketch3.addConstraint(Sketcher.Constraint("Perpendicular", 24, 48))
sketch3.addConstraint(Sketcher.Constraint("Horizontal", 21, 1, 24, 2))
sketch3.addConstraint(Sketcher.Constraint("Horizontal", 20, 2, 25, 1))
sketch3.addConstraint(Sketcher.Constraint("Horizontal", 23, 2, 26, 2))
sketch3.addConstraint(Sketcher.Constraint("Horizontal", 22, 2, 27, 2))
sketch3.addConstraint(Sketcher.Constraint("Horizontal", 17, 1, 28, 2))
sketch3.addConstraint(Sketcher.Constraint("Horizontal", 16, 2, 29, 1))
sketch3.addConstraint(Sketcher.Constraint("Horizontal", 19, 2, 30, 2))
sketch3.addConstraint(Sketcher.Constraint("Horizontal", 13, 1, 32, 2))
sketch3.addConstraint(Sketcher.Constraint("Horizontal", 12, 2, 33, 1))
sketch3.addConstraint(Sketcher.Constraint("Horizontal", 0, 2, 37, 1))
sketch3.addConstraint(Sketcher.Constraint("Horizontal", 9, 1, 48, 2))
sketch3.addConstraint(Sketcher.Constraint("Vertical", 9, 1, 12, 2))
sketch3.addConstraint(Sketcher.Constraint("Vertical", 8, 2, 13, 1))
sketch3.addConstraint(Sketcher.Constraint("Vertical", 5, 1, 16, 2))
sketch3.addConstraint(Sketcher.Constraint("Vertical", 4, 2, 17, 1))
sketch3.addConstraint(Sketcher.Constraint("Vertical", 1, 1, 20, 2))
sketch3.addConstraint(Sketcher.Constraint("Vertical", 0, 2, 21, 1))
sketch3.addConstraint(Sketcher.Constraint("Radius", 1, Q("6.608 in")))
sketch3.addConstraint(Sketcher.Constraint("Radius", 3, Q("6.672 in")))
sketch3.addConstraint(Sketcher.Constraint("DistanceY", -1, 1, 0, 2, 166.948888))
sketch3.addConstraint(Sketcher.Constraint("DistanceX", -1, 1, 1, 1, 68.489241))
sketch3.addConstraint(Sketcher.Constraint("DistanceX", -1, 1, 3, 2, 17.47101))
sketch3.addConstraint(Sketcher.Constraint("DistanceX", -1, 1, 8, 2, 153.23369))
sketch3.addConstraint(Sketcher.Constraint("DistanceX", -1, 1, 9, 1, 166.948888))
sketch3.addConstraint(Sketcher.Constraint("DistanceX", 39, 2, -1, 1, 48.36624))
sketch3.addConstraint(Sketcher.Constraint("DistanceY", -1, 1, 40, 2, 130.286059))
sketch3.addConstraint(Sketcher.Constraint("DistanceX", 41, 1, -1, 1, 79.874852))
sketch3.addConstraint(Sketcher.Constraint("DistanceX", 42, 2, -1, 1, 80.648458))
sketch3.addConstraint(Sketcher.Constraint("DistanceX", 43, 2, -1, 1, 106.840169))
sketch3.addConstraint(Sketcher.Constraint("DistanceY", -1, 1, 44, 2, 79.874852))
sketch3.addConstraint(Sketcher.Constraint("DistanceX", 45, 1, -1, 1, 130.286059))
sketch3.addConstraint(Sketcher.Constraint("DistanceX", 46, 2, -1, 1, 131.547909))
sketch3.addConstraint(Sketcher.Constraint("DistanceX", 47, 2, -1, 1, 149.048651))
sketch3.addConstraint(Sketcher.Constraint("DistanceY", -1, 1, 50, 2, 48.36624))
sketch3.addConstraint(Sketcher.Constraint("DistanceX", -1, 1, 2, 2, 69.152575))
sketch3.addConstraint(Sketcher.Constraint("DistanceX", -1, 1, 4, 2, 98.459648))
sketch3.addConstraint(Sketcher.Constraint("DistanceX", -1, 1, 5, 1, 135.930267))
sketch3.addConstraint(Sketcher.Constraint("DistanceX", -1, 1, 6, 2, 137.246783))
sketch3.addConstraint(Sketcher.Constraint("DistanceX", 36, 2, -1, 1, 47.902296))
sketch3.addConstraint(Sketcher.Constraint("DistanceX", 49, 1, -1, 1, 160.862394))
sketch3.setExpression("Constraints[133]", "Params.sketch3_radius")
sketch3.setExpression("Constraints[134]", "Params.sketch3_radius2")
pad3 = body.newObject("PartDesign::Pad", "Pad002")
pad3.Profile = sketch3
pad3.setExpression("Length", "Params.pad3_length")
pad3.Reversed = True

doc.recompute()
